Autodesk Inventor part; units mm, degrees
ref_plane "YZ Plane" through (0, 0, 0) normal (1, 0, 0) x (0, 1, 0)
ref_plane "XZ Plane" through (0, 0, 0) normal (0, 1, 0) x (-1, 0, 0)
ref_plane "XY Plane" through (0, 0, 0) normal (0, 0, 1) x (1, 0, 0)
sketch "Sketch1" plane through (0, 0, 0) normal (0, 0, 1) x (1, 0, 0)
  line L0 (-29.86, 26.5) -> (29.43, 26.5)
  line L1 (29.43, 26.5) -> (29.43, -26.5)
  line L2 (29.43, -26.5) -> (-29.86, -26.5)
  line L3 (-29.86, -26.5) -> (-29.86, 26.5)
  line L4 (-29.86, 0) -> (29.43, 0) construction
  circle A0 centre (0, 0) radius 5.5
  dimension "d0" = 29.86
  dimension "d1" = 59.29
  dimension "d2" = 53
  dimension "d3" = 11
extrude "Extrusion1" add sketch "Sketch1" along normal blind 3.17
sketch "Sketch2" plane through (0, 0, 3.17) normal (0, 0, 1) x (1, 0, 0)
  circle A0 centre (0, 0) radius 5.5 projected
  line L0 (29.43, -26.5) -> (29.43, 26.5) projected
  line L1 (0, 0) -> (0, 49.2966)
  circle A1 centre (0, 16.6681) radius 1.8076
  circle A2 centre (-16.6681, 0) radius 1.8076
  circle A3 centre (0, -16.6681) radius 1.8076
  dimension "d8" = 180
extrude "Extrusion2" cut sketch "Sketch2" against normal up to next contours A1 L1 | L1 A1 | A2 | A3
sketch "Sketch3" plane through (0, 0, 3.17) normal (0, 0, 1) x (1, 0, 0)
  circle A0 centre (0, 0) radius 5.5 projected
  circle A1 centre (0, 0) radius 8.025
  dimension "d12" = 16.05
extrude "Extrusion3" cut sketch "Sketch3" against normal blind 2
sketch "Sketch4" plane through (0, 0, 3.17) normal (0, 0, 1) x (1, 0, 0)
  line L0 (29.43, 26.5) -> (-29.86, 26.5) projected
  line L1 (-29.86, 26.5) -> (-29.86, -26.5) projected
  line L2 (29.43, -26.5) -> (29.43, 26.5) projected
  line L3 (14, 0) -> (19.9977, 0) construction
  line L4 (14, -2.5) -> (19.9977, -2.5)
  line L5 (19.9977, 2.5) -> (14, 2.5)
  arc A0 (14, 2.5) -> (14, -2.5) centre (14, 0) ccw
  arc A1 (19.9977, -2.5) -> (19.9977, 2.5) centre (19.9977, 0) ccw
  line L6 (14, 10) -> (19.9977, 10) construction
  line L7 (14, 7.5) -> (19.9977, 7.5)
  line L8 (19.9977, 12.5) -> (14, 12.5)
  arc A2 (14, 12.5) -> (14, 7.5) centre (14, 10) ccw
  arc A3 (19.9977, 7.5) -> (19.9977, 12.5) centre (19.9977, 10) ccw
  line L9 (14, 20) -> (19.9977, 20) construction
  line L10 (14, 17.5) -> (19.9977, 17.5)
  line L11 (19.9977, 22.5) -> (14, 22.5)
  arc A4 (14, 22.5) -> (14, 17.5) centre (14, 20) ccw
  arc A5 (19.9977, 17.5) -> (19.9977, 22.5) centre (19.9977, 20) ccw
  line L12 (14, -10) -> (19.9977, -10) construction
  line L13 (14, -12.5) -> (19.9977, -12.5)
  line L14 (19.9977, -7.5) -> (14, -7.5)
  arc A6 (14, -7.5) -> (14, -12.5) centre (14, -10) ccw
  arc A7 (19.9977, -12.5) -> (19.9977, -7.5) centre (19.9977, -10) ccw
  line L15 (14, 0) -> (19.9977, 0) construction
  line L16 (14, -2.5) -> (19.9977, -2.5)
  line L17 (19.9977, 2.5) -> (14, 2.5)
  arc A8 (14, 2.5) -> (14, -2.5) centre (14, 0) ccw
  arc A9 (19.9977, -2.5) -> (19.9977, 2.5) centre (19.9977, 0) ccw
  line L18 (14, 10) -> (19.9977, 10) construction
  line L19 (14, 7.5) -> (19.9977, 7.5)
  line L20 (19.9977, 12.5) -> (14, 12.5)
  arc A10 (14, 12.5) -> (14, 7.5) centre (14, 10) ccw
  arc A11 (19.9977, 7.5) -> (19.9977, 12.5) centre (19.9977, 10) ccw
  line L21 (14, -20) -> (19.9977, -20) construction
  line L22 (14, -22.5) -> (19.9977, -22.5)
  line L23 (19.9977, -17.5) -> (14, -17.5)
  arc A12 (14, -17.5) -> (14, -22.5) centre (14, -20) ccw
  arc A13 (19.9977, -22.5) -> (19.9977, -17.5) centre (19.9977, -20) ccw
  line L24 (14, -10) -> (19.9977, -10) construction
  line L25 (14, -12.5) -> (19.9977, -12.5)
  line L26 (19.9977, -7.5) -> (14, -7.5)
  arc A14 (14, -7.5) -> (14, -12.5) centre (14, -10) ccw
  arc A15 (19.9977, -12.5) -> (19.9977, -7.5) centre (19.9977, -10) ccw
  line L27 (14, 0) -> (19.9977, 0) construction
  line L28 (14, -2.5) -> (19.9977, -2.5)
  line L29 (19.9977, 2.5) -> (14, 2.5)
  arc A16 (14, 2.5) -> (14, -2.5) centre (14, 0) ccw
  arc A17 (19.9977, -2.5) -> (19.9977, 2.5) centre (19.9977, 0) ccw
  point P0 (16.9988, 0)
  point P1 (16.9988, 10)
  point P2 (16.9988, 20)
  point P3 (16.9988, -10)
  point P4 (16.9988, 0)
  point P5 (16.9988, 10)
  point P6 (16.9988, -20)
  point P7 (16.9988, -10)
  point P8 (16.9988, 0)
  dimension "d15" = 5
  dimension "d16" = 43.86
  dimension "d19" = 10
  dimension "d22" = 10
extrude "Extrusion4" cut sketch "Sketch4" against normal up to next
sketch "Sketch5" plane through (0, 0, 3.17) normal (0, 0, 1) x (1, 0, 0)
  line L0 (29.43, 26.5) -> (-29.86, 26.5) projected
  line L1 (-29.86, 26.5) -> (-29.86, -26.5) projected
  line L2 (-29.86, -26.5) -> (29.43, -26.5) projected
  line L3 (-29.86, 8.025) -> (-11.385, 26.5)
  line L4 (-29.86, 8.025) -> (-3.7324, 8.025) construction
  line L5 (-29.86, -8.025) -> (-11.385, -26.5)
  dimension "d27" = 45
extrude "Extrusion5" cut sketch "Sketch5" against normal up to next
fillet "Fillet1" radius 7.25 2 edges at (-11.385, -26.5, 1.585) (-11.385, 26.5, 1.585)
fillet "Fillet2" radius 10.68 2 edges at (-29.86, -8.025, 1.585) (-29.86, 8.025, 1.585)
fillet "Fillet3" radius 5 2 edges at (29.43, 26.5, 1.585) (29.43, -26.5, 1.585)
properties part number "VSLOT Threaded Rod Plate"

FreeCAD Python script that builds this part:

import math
import FreeCAD as App
import Part
import Sketcher
from FreeCAD import Vector


def edges_at(feature, points):
    """Names of the edges that pass closest to the given points."""
    edges = feature.Shape.Edges
    near = lambda p: min(range(len(edges)), key=lambda i: edges[i].distToShape(Part.Vertex(*p))[0])
    return sorted({f"Edge{near(p) + 1}" for p in points})

doc = App.newDocument("Part")
params = doc.addObject("Spreadsheet::Sheet", "Params")
for row, (alias, value) in enumerate([
    ("sketch1_diameter", "11 mm"),
    ("sketch1_height", "53 mm"),
    ("sketch1_width", "59.29 mm"),
    ("pad1_length", "3.17 mm"),
    ("sketch3_diameter", "16.05 mm"),
    ("sketch3_diameter2", "11 mm"),
    ("pocket2_length", "2 mm"),
    ("sketch4_radius", "2.5 mm"),
    ("fillet_radius", "7.25 mm"),
    ("fillet2_radius", "10.68 mm"),
    ("fillet3_radius", "5 mm"),
], start=1):
    params.set(f"A{row}", alias)
    params.set(f"B{row}", "=" + value)
    params.setAlias(f"B{row}", alias)

body = doc.addObject("PartDesign::Body", "Body")

sketch1 = doc.addObject("Sketcher::SketchObject", "Sketch")
body.addObject(sketch1)
sketch1.AttachmentSupport = (doc.XY_Plane, [""])
sketch1.MapMode = "FlatFace"
sketch1.addGeometry(Part.LineSegment(Vector(29, 26, 0), Vector(-30, 26, 0)), False)
sketch1.addGeometry(Part.LineSegment(Vector(-30, 26, 0), Vector(-30, -26, 0)), False)
sketch1.addGeometry(Part.LineSegment(Vector(-30, -26, 0), Vector(29, -26, 0)), False)
sketch1.addGeometry(Part.LineSegment(Vector(29, -26, 0), Vector(29, 26, 0)), False)
sketch1.addGeometry(Part.Circle(Vector(0, 0, 0), Vector(0, 0, 1), 6), False)
sketch1.addConstraint(Sketcher.Constraint("Coincident", 0, 2, 1, 1))
sketch1.addConstraint(Sketcher.Constraint("Coincident", 1, 2, 2, 1))
sketch1.addConstraint(Sketcher.Constraint("Coincident", 2, 2, 3, 1))
sketch1.addConstraint(Sketcher.Constraint("Coincident", 3, 2, 0, 1))
sketch1.addConstraint(Sketcher.Constraint("Horizontal", 0))
sketch1.addConstraint(Sketcher.Constraint("Vertical", 1))
sketch1.addConstraint(Sketcher.Constraint("Horizontal", 2))
sketch1.addConstraint(Sketcher.Constraint("Vertical", 3))
sketch1.addConstraint(Sketcher.Constraint("Coincident", 4, 3, -1, 1))
sketch1.addConstraint(Sketcher.Constraint("Diameter", 4, 11.0))
sketch1.addConstraint(Sketcher.Constraint("DistanceY", 1, 2, 1, 1, 53.0))
sketch1.addConstraint(Sketcher.Constraint("DistanceX", 0, 2, 0, 1, 59.29))
sketch1.addConstraint(Sketcher.Constraint("DistanceX", 0, 2, -1, 1, 29.86))
sketch1.addConstraint(Sketcher.Constraint("DistanceY", -1, 1, 0, 2, 26.5))
sketch1.setExpression("Constraints[9]", "Params.sketch1_diameter")
sketch1.setExpression("Constraints[10]", "Params.sketch1_height")
sketch1.setExpression("Constraints[11]", "Params.sketch1_width")
pad1 = doc.addObject("PartDesign::Pad", "Pad")
body.addObject(pad1)
pad1.Profile = sketch1
pad1.setExpression("Length", "Params.pad1_length")

sketch2 = doc.addObject("Sketcher::SketchObject", "Sketch001")
body.addObject(sketch2)
sketch2.AttachmentSupport = (doc.XY_Plane, [""])
sketch2.MapMode = "FlatFace"
sketch2.AttachmentOffset = App.Placement(Vector(0, 0, 3.17), App.Rotation())
sketch2.addGeometry(Part.Circle(Vector(0, 16.7, 0), Vector(0, 0, 1), 1.8), False)
sketch2.addGeometry(Part.Circle(Vector(-16.7, 0, 0), Vector(0, 0, 1), 1.8), False)
sketch2.addGeometry(Part.Circle(Vector(0, -16.7, 0), Vector(0, 0, 1), 1.8), False)
sketch2.addConstraint(Sketcher.Constraint("Equal", 0, 1))
sketch2.addConstraint(Sketcher.Constraint("Equal", 1, 2))
sketch2.addConstraint(Sketcher.Constraint("Symmetric", 0, 3, 2, 3, -1, 1))
sketch2.addConstraint(Sketcher.Constraint("PointOnObject", 0, 3, -2))
sketch2.addConstraint(Sketcher.Constraint("PointOnObject", 1, 3, -1))
sketch2.addConstraint(Sketcher.Constraint("Diameter", 0, 3.6152))
sketch2.addConstraint(Sketcher.Constraint("DistanceY", -1, 1, 0, 3, 16.668))
sketch2.addConstraint(Sketcher.Constraint("DistanceX", 1, 3, -1, 1, 16.668))
pocket1 = doc.addObject("PartDesign::Pocket", "Pocket")
body.addObject(pocket1)
pocket1.Profile = sketch2
pocket1.Type = "UpToFirst"

sketch3 = doc.addObject("Sketcher::SketchObject", "Sketch002")
body.addObject(sketch3)
sketch3.AttachmentSupport = (doc.XY_Plane, [""])
sketch3.MapMode = "FlatFace"
sketch3.AttachmentOffset = App.Placement(Vector(0, 0, 3.17), App.Rotation())
sketch3.addGeometry(Part.Circle(Vector(0, 0, 0), Vector(0, 0, 1), 8), False)
sketch3.addGeometry(Part.Circle(Vector(0, 0, 0), Vector(0, 0, 1), 6), False)
sketch3.addConstraint(Sketcher.Constraint("Coincident", 0, 3, -1, 1))
sketch3.addConstraint(Sketcher.Constraint("Coincident", 1, 3, -1, 1))
sketch3.addConstraint(Sketcher.Constraint("Diameter", 0, 16.05))
sketch3.addConstraint(Sketcher.Constraint("Diameter", 1, 11.0))
sketch3.setExpression("Constraints[2]", "Params.sketch3_diameter")
sketch3.setExpression("Constraints[3]", "Params.sketch3_diameter2")
pocket2 = doc.addObject("PartDesign::Pocket", "Pocket001")
body.addObject(pocket2)
pocket2.Profile = sketch3
pocket2.setExpression("Length", "Params.pocket2_length")

sketch4 = doc.addObject("Sketcher::SketchObject", "Sketch003")
body.addObject(sketch4)
sketch4.AttachmentSupport = (doc.XY_Plane, [""])
sketch4.MapMode = "FlatFace"
sketch4.AttachmentOffset = App.Placement(Vector(0, 0, 3.17), App.Rotation())
sketch4.addGeometry(Part.ArcOfCircle(Part.Circle(Vector(14, 0, 0), Vector(0, 0, 1), 2.5), math.radians(90), math.radians(270)), False)
sketch4.addGeometry(Part.LineSegment(Vector(14, -2.5, 0), Vector(20, -2.5, 0)), False)
sketch4.addGeometry(Part.ArcOfCircle(Part.Circle(Vector(20, 0, 0), Vector(0, 0, 1), 2.5), math.radians(-90), math.radians(90)), False)
sketch4.addGeometry(Part.LineSegment(Vector(20, 2.5, 0), Vector(14, 2.5, 0)), False)
sketch4.addGeometry(Part.ArcOfCircle(Part.Circle(Vector(14, 10, 0), Vector(0, 0, 1), 2.5), math.radians(90), math.radians(270)), False)
sketch4.addGeometry(Part.LineSegment(Vector(14, 7.5, 0), Vector(20, 7.5, 0)), False)
sketch4.addGeometry(Part.ArcOfCircle(Part.Circle(Vector(20, 10, 0), Vector(0, 0, 1), 2.5), math.radians(-90), math.radians(90)), False)
sketch4.addGeometry(Part.LineSegment(Vector(20, 12.5, 0), Vector(14, 12.5, 0)), False)
sketch4.addGeometry(Part.ArcOfCircle(Part.Circle(Vector(14, 20, 0), Vector(0, 0, 1), 2.5), math.radians(90), math.radians(270)), False)
sketch4.addGeometry(Part.LineSegment(Vector(14, 17.5, 0), Vector(20, 17.5, 0)), False)
sketch4.addGeometry(Part.ArcOfCircle(Part.Circle(Vector(20, 20, 0), Vector(0, 0, 1), 2.5), math.radians(-90), math.radians(90)), False)
sketch4.addGeometry(Part.LineSegment(Vector(20, 22.5, 0), Vector(14, 22.5, 0)), False)
sketch4.addGeometry(Part.ArcOfCircle(Part.Circle(Vector(14, -10, 0), Vector(0, 0, 1), 2.5), math.radians(90), math.radians(270)), False)
sketch4.addGeometry(Part.LineSegment(Vector(14, -12.5, 0), Vector(20, -12.5, 0)), False)
sketch4.addGeometry(Part.ArcOfCircle(Part.Circle(Vector(20, -10, 0), Vector(0, 0, 1), 2.5), math.radians(-90), math.radians(90)), False)
sketch4.addGeometry(Part.LineSegment(Vector(20, -7.5, 0), Vector(14, -7.5, 0)), False)
sketch4.addGeometry(Part.ArcOfCircle(Part.Circle(Vector(14, -20, 0), Vector(0, 0, 1), 2.5), math.radians(90), math.radians(270)), False)
sketch4.addGeometry(Part.LineSegment(Vector(14, -22.5, 0), Vector(20, -22.5, 0)), False)
sketch4.addGeometry(Part.ArcOfCircle(Part.Circle(Vector(20, -20, 0), Vector(0, 0, 1), 2.5), math.radians(-90), math.radians(90)), False)
sketch4.addGeometry(Part.LineSegment(Vector(20, -17.5, 0), Vector(14, -17.5, 0)), False)
sketch4.addConstraint(Sketcher.Constraint("Tangent", 0, 2, 1, 1))
sketch4.addConstraint(Sketcher.Constraint("Tangent", 1, 2, 2, 1))
sketch4.addConstraint(Sketcher.Constraint("Tangent", 2, 2, 3, 1))
sketch4.addConstraint(Sketcher.Constraint("Tangent", 3, 2, 0, 1))
sketch4.addConstraint(Sketcher.Constraint("Tangent", 4, 2, 5, 1))
sketch4.addConstraint(Sketcher.Constraint("Tangent", 5, 2, 6, 1))
sketch4.addConstraint(Sketcher.Constraint("Tangent", 6, 2, 7, 1))
sketch4.addConstraint(Sketcher.Constraint("Tangent", 7, 2, 4, 1))
sketch4.addConstraint(Sketcher.Constraint("Tangent", 8, 2, 9, 1))
sketch4.addConstraint(Sketcher.Constraint("Tangent", 9, 2, 10, 1))
sketch4.addConstraint(Sketcher.Constraint("Tangent", 10, 2, 11, 1))
sketch4.addConstraint(Sketcher.Constraint("Tangent", 11, 2, 8, 1))
sketch4.addConstraint(Sketcher.Constraint("Tangent", 12, 2, 13, 1))
sketch4.addConstraint(Sketcher.Constraint("Tangent", 13, 2, 14, 1))
sketch4.addConstraint(Sketcher.Constraint("Tangent", 14, 2, 15, 1))
sketch4.addConstraint(Sketcher.Constraint("Tangent", 15, 2, 12, 1))
sketch4.addConstraint(Sketcher.Constraint("Tangent", 16, 2, 17, 1))
sketch4.addConstraint(Sketcher.Constraint("Tangent", 17, 2, 18, 1))
sketch4.addConstraint(Sketcher.Constraint("Tangent", 18, 2, 19, 1))
sketch4.addConstraint(Sketcher.Constraint("Tangent", 19, 2, 16, 1))
sketch4.addConstraint(Sketcher.Constraint("Horizontal", 1))
sketch4.addConstraint(Sketcher.Constraint("Horizontal", 3))
sketch4.addConstraint(Sketcher.Constraint("Horizontal", 5))
sketch4.addConstraint(Sketcher.Constraint("Horizontal", 7))
sketch4.addConstraint(Sketcher.Constraint("Horizontal", 9))
sketch4.addConstraint(Sketcher.Constraint("Horizontal", 11))
sketch4.addConstraint(Sketcher.Constraint("Horizontal", 13))
sketch4.addConstraint(Sketcher.Constraint("Horizontal", 15))
sketch4.addConstraint(Sketcher.Constraint("Horizontal", 17))
sketch4.addConstraint(Sketcher.Constraint("Horizontal", 19))
sketch4.addConstraint(Sketcher.Constraint("Equal", 2, 4))
sketch4.addConstraint(Sketcher.Constraint("Equal", 6, 8))
sketch4.addConstraint(Sketcher.Constraint("Equal", 10, 12))
sketch4.addConstraint(Sketcher.Constraint("Equal", 14, 16))
sketch4.addConstraint(Sketcher.Constraint("Symmetric", 4, 3, 12, 3, -1))
sketch4.addConstraint(Sketcher.Constraint("Symmetric", 8, 3, 16, 3, -1))
sketch4.addConstraint(Sketcher.Constraint("PointOnObject", 0, 3, -1))
sketch4.addConstraint(Sketcher.Constraint("Vertical", 0, 3, 4, 3))
sketch4.addConstraint(Sketcher.Constraint("Vertical", 2, 3, 6, 3))
sketch4.addConstraint(Sketcher.Constraint("Vertical", 4, 3, 8, 3))
sketch4.addConstraint(Sketcher.Constraint("Vertical", 6, 3, 10, 3))
sketch4.addConstraint(Sketcher.Constraint("Vertical", 10, 3, 14, 3))
sketch4.addConstraint(Sketcher.Constraint("Vertical", 14, 3, 18, 3))
sketch4.addConstraint(Sketcher.Constraint("Radius", 0, 2.5))
sketch4.addConstraint(Sketcher.Constraint("DistanceY", -1, 1, 4, 3, 10.0))
sketch4.addConstraint(Sketcher.Constraint("DistanceY", 4, 3, 8, 3, 10.0))
sketch4.addConstraint(Sketcher.Constraint("DistanceX", -1, 1, 0, 3, 14.0))
sketch4.addConstraint(Sketcher.Constraint("DistanceX", 1, 1, 1, 2, 5.9977))
sketch4.setExpression("Constraints[43]", "Params.sketch4_radius")
pocket3 = doc.addObject("PartDesign::Pocket", "Pocket002")
body.addObject(pocket3)
pocket3.Profile = sketch4
pocket3.Type = "UpToFirst"

sketch5 = doc.addObject("Sketcher::SketchObject", "Sketch004")
body.addObject(sketch5)
sketch5.AttachmentSupport = (doc.XY_Plane, [""])
sketch5.MapMode = "FlatFace"
sketch5.AttachmentOffset = App.Placement(Vector(0, 0, 3.17), App.Rotation())
sketch5.addGeometry(Part.LineSegment(Vector(-30, 8, 0), Vector(-11, 26, 0)), False)
sketch5.addGeometry(Part.LineSegment(Vector(-11, 26, 0), Vector(-30, 26, 0)), False)
sketch5.addGeometry(Part.LineSegment(Vector(-30, 26, 0), Vector(-30, 8, 0)), False)
sketch5.addGeometry(Part.LineSegment(Vector(-11, -26, 0), Vector(-30, -8, 0)), False)
sketch5.addGeometry(Part.LineSegment(Vector(-30, -8, 0), Vector(-30, -26, 0)), False)
sketch5.addGeometry(Part.LineSegment(Vector(-30, -26, 0), Vector(-11, -26, 0)), False)
sketch5.addConstraint(Sketcher.Constraint("Coincident", 0, 2, 1, 1))
sketch5.addConstraint(Sketcher.Constraint("Coincident", 1, 2, 2, 1))
sketch5.addConstraint(Sketcher.Constraint("Coincident", 2, 2, 0, 1))
sketch5.addConstraint(Sketcher.Constraint("Coincident", 3, 2, 4, 1))
sketch5.addConstraint(Sketcher.Constraint("Coincident", 4, 2, 5, 1))
sketch5.addConstraint(Sketcher.Constraint("Coincident", 5, 2, 3, 1))
sketch5.addConstraint(Sketcher.Constraint("Horizontal", 1))
sketch5.addConstraint(Sketcher.Constraint("Vertical", 2))
sketch5.addConstraint(Sketcher.Constraint("Vertical", 4))
sketch5.addConstraint(Sketcher.Constraint("Horizontal", 5))
sketch5.addConstraint(Sketcher.Constraint("Symmetric", 2, 2, 3, 2, -1))
sketch5.addConstraint(Sketcher.Constraint("Symmetric", 0, 2, 5, 2, -1))
sketch5.addConstraint(Sketcher.Constraint("Perpendicular", 0, 3))
sketch5.addConstraint(Sketcher.Constraint("DistanceY", 4, 2, 1, 2, 53.0))
sketch5.addConstraint(Sketcher.Constraint("DistanceX", 1, 2, 1, 1, 18.475))
sketch5.addConstraint(Sketcher.Constraint("DistanceX", 1, 2, -1, 1, 29.86))
pocket4 = doc.addObject("PartDesign::Pocket", "Pocket003")
body.addObject(pocket4)
pocket4.Profile = sketch5
pocket4.Type = "UpToFirst"
doc.recompute()

fillet = doc.addObject("PartDesign::Fillet", "Fillet")
body.addObject(fillet)
fillet.Base = (pocket4, edges_at(pocket4, [(-11.385, -26.5, 1.585), (-11.385, 26.5, 1.585)]))
fillet.setExpression("Radius", "Params.fillet_radius")
doc.recompute()

fillet2 = doc.addObject("PartDesign::Fillet", "Fillet001")
body.addObject(fillet2)
fillet2.Base = (fillet, edges_at(fillet, [(-29.86, -8.025, 1.585), (-29.86, 8.025, 1.585)]))
fillet2.setExpression("Radius", "Params.fillet2_radius")
doc.recompute()

fillet3 = doc.addObject("PartDesign::Fillet", "Fillet002")
body.addObject(fillet3)
fillet3.Base = (fillet2, edges_at(fillet2, [(29.43, 26.5, 1.585), (29.43, -26.5, 1.585)]))
fillet3.setExpression("Radius", "Params.fillet3_radius")

doc.recompute()
